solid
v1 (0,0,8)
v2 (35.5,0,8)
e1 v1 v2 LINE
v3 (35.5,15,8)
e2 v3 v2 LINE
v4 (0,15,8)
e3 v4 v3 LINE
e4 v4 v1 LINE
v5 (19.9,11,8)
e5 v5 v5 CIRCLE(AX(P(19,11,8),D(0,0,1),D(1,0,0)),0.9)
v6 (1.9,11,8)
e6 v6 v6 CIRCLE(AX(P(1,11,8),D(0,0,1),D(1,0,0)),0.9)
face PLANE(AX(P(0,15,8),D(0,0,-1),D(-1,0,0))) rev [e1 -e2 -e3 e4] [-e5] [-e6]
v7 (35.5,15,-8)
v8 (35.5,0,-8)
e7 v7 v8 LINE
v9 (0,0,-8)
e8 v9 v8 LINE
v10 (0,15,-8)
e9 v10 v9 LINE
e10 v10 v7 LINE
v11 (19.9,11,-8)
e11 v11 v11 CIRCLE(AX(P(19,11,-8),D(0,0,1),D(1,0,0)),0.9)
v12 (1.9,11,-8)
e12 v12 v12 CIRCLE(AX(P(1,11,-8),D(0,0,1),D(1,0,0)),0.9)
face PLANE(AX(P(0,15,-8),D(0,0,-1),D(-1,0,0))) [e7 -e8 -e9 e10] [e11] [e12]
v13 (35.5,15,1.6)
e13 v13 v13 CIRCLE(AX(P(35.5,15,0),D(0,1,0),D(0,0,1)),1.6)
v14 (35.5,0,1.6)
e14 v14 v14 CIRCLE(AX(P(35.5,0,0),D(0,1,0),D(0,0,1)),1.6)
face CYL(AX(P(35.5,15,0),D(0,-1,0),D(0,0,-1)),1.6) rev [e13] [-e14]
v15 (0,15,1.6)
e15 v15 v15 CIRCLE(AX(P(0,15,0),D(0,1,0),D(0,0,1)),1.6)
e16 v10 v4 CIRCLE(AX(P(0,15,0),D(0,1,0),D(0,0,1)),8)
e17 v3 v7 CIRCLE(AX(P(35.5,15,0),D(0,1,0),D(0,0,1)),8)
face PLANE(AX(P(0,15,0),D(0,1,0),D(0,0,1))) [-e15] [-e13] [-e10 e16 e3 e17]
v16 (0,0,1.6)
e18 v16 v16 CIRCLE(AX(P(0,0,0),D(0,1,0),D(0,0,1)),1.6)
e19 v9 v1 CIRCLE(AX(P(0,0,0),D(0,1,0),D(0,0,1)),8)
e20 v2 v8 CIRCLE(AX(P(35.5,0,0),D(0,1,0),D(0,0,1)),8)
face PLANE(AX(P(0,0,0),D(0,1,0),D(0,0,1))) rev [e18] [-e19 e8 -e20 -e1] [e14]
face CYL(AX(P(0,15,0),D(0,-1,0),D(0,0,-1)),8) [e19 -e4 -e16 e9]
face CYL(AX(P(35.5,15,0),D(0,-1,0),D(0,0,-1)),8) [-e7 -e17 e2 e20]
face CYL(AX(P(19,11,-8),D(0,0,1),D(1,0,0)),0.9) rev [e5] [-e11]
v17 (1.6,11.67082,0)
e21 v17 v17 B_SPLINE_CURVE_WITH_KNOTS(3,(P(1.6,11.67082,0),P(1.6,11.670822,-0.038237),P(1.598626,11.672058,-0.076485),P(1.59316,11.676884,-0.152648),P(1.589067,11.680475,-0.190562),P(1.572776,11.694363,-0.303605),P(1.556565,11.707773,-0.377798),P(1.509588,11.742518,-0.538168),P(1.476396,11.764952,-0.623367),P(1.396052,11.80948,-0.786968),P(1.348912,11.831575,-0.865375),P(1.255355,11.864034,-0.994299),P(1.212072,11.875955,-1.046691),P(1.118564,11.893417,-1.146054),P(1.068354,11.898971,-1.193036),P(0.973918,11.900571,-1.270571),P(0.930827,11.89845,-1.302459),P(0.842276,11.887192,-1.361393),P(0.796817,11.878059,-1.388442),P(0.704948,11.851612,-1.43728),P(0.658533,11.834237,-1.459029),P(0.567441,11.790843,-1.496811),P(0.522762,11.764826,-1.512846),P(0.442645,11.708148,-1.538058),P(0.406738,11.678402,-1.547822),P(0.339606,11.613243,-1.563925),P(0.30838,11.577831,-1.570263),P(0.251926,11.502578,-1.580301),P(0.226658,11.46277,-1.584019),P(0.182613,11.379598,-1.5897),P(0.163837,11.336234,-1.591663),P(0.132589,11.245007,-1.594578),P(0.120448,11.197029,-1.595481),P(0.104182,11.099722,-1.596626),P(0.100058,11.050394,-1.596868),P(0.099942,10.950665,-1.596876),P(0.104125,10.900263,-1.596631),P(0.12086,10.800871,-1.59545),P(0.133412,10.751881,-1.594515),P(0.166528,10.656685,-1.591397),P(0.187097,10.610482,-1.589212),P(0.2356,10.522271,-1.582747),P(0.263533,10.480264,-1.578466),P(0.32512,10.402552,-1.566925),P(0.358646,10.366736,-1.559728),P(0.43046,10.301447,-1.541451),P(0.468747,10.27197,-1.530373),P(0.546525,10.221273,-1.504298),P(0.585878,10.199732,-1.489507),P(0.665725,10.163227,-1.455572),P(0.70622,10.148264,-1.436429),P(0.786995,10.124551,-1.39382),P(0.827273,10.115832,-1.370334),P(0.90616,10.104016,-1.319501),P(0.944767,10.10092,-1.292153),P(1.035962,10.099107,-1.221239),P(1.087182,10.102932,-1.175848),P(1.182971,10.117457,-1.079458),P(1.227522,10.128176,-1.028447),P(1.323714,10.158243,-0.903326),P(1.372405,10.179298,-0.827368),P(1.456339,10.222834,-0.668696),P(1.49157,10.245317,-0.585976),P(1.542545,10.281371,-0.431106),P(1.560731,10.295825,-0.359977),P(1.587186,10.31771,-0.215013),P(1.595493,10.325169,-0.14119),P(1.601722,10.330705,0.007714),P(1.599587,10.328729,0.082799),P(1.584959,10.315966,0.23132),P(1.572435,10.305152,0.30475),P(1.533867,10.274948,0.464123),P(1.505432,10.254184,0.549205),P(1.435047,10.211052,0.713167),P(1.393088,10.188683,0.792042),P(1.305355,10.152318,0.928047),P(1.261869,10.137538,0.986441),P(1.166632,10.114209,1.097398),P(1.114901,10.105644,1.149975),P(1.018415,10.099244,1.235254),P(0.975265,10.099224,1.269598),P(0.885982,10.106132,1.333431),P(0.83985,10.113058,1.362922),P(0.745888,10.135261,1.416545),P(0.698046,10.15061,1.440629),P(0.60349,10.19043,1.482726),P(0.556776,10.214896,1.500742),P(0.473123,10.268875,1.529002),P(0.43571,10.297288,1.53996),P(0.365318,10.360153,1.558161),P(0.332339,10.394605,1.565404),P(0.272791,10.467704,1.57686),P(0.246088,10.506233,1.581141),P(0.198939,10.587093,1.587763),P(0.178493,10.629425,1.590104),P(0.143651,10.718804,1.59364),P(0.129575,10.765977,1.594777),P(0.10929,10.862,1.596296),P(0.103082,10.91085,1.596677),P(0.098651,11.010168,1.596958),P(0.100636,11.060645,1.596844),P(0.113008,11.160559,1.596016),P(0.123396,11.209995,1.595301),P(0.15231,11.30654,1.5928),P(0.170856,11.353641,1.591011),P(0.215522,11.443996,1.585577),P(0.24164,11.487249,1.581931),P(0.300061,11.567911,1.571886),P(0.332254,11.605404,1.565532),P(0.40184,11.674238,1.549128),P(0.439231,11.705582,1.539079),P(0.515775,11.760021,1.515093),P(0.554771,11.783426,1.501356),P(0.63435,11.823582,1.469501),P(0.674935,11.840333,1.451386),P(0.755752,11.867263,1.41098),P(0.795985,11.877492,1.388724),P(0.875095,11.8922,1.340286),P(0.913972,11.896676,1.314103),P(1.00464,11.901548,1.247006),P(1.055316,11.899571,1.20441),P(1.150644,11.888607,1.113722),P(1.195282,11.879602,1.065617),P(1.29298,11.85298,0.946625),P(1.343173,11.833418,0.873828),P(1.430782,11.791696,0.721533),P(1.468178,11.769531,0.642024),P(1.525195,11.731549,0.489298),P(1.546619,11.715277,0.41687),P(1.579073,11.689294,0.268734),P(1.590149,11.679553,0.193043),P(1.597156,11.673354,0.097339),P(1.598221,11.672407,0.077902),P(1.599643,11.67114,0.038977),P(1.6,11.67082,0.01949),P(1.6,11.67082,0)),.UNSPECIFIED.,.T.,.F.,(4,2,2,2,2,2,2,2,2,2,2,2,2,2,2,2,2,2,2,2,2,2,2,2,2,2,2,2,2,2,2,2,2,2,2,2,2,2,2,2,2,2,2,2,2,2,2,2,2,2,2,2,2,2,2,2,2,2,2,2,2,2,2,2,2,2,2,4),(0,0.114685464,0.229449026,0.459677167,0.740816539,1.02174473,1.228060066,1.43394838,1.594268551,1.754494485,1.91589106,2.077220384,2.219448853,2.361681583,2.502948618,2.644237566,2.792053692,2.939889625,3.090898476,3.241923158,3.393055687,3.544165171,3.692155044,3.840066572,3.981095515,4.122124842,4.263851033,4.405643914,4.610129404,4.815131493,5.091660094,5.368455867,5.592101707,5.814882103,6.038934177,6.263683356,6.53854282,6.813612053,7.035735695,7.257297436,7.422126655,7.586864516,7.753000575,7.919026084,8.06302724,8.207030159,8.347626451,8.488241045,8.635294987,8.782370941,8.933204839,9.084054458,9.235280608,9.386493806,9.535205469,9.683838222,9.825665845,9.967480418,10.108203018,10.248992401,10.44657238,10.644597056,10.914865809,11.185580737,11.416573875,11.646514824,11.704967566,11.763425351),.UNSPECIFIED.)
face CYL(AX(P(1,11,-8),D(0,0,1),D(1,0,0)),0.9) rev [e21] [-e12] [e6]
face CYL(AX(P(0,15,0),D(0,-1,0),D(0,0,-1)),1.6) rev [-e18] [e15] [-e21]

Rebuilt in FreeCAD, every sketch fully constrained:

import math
import FreeCAD as App
import Part
import Sketcher
from FreeCAD import Vector

doc = App.newDocument("Part")
body = doc.addObject("PartDesign::Body", "Body")

# Sketch on XZ plane
sketch1 = doc.addObject("Sketcher::SketchObject", "Sketch")
body.addObject(sketch1)
sketch1.AttachmentSupport = (doc.XZ_Plane, [""])
sketch1.MapMode = "FlatFace"
sketch1.addGeometry(Part.LineSegment(Vector(35.5, -8, 0), Vector(0, -8, 0)), False)
sketch1.addGeometry(Part.ArcOfCircle(Part.Circle(Vector(0, 0, 0), Vector(0, 0, 1), 8), math.radians(90), math.radians(270)), False)
sketch1.addGeometry(Part.LineSegment(Vector(0, 8, 0), Vector(35.5, 8, 0)), False)
sketch1.addGeometry(Part.ArcOfCircle(Part.Circle(Vector(35.5, 0, 0), Vector(0, 0, 1), 8), math.radians(-90), math.radians(90)), False)
sketch1.addGeometry(Part.Circle(Vector(35.5, 0, 0), Vector(0, 0, 1), 1.6), False)
sketch1.addGeometry(Part.Circle(Vector(0, 0, 0), Vector(0, 0, 1), 1.6), False)
sketch1.addConstraint(Sketcher.Constraint("Tangent", 0, 2, 1, 2))
sketch1.addConstraint(Sketcher.Constraint("Tangent", 1, 1, 2, 1))
sketch1.addConstraint(Sketcher.Constraint("Tangent", 2, 2, 3, 2))
sketch1.addConstraint(Sketcher.Constraint("Tangent", 3, 1, 0, 1))
sketch1.addConstraint(Sketcher.Constraint("Horizontal", 0))
sketch1.addConstraint(Sketcher.Constraint("Horizontal", 2))
sketch1.addConstraint(Sketcher.Constraint("Coincident", 1, 3, -1, 1))
sketch1.addConstraint(Sketcher.Constraint("Coincident", 5, 3, -1, 1))
sketch1.addConstraint(Sketcher.Constraint("Coincident", 4, 3, 3, 3))
sketch1.addConstraint(Sketcher.Constraint("Equal", 4, 5))
sketch1.addConstraint(Sketcher.Constraint("Radius", 1, 8.0))
sketch1.addConstraint(Sketcher.Constraint("Diameter", 4, 3.2))
sketch1.addConstraint(Sketcher.Constraint("DistanceX", 0, 2, 0, 1, 35.5))
pad1 = doc.addObject("PartDesign::Pad", "Pad")
body.addObject(pad1)
pad1.Profile = sketch1
pad1.Length = 15
pad1.Reversed = True

# Sketch on XY plane
sketch2 = doc.addObject("Sketcher::SketchObject", "Sketch001")
body.addObject(sketch2)
sketch2.AttachmentSupport = (doc.XY_Plane, [""])
sketch2.MapMode = "FlatFace"
sketch2.AttachmentOffset = App.Placement(Vector(0, 0, 8), App.Rotation())
sketch2.addGeometry(Part.Circle(Vector(19, 11, 0), Vector(0, 0, 1), 0.9), False)
sketch2.addGeometry(Part.Circle(Vector(1, 11, 0), Vector(0, 0, 1), 0.9), False)
sketch2.addConstraint(Sketcher.Constraint("Equal", 0, 1))
sketch2.addConstraint(Sketcher.Constraint("Horizontal", 0, 3, 1, 3))
sketch2.addConstraint(Sketcher.Constraint("Diameter", 0, 1.8))
sketch2.addConstraint(Sketcher.Constraint("DistanceX", -1, 1, 0, 3, 19.0))
sketch2.addConstraint(Sketcher.Constraint("DistanceY", -1, 1, 0, 3, 11.0))
sketch2.addConstraint(Sketcher.Constraint("DistanceX", -1, 1, 1, 3, 1.0))
pocket1 = doc.addObject("PartDesign::Pocket", "Pocket")
body.addObject(pocket1)
pocket1.Profile = sketch2
pocket1.Type = "ThroughAll"

doc.recompute()
